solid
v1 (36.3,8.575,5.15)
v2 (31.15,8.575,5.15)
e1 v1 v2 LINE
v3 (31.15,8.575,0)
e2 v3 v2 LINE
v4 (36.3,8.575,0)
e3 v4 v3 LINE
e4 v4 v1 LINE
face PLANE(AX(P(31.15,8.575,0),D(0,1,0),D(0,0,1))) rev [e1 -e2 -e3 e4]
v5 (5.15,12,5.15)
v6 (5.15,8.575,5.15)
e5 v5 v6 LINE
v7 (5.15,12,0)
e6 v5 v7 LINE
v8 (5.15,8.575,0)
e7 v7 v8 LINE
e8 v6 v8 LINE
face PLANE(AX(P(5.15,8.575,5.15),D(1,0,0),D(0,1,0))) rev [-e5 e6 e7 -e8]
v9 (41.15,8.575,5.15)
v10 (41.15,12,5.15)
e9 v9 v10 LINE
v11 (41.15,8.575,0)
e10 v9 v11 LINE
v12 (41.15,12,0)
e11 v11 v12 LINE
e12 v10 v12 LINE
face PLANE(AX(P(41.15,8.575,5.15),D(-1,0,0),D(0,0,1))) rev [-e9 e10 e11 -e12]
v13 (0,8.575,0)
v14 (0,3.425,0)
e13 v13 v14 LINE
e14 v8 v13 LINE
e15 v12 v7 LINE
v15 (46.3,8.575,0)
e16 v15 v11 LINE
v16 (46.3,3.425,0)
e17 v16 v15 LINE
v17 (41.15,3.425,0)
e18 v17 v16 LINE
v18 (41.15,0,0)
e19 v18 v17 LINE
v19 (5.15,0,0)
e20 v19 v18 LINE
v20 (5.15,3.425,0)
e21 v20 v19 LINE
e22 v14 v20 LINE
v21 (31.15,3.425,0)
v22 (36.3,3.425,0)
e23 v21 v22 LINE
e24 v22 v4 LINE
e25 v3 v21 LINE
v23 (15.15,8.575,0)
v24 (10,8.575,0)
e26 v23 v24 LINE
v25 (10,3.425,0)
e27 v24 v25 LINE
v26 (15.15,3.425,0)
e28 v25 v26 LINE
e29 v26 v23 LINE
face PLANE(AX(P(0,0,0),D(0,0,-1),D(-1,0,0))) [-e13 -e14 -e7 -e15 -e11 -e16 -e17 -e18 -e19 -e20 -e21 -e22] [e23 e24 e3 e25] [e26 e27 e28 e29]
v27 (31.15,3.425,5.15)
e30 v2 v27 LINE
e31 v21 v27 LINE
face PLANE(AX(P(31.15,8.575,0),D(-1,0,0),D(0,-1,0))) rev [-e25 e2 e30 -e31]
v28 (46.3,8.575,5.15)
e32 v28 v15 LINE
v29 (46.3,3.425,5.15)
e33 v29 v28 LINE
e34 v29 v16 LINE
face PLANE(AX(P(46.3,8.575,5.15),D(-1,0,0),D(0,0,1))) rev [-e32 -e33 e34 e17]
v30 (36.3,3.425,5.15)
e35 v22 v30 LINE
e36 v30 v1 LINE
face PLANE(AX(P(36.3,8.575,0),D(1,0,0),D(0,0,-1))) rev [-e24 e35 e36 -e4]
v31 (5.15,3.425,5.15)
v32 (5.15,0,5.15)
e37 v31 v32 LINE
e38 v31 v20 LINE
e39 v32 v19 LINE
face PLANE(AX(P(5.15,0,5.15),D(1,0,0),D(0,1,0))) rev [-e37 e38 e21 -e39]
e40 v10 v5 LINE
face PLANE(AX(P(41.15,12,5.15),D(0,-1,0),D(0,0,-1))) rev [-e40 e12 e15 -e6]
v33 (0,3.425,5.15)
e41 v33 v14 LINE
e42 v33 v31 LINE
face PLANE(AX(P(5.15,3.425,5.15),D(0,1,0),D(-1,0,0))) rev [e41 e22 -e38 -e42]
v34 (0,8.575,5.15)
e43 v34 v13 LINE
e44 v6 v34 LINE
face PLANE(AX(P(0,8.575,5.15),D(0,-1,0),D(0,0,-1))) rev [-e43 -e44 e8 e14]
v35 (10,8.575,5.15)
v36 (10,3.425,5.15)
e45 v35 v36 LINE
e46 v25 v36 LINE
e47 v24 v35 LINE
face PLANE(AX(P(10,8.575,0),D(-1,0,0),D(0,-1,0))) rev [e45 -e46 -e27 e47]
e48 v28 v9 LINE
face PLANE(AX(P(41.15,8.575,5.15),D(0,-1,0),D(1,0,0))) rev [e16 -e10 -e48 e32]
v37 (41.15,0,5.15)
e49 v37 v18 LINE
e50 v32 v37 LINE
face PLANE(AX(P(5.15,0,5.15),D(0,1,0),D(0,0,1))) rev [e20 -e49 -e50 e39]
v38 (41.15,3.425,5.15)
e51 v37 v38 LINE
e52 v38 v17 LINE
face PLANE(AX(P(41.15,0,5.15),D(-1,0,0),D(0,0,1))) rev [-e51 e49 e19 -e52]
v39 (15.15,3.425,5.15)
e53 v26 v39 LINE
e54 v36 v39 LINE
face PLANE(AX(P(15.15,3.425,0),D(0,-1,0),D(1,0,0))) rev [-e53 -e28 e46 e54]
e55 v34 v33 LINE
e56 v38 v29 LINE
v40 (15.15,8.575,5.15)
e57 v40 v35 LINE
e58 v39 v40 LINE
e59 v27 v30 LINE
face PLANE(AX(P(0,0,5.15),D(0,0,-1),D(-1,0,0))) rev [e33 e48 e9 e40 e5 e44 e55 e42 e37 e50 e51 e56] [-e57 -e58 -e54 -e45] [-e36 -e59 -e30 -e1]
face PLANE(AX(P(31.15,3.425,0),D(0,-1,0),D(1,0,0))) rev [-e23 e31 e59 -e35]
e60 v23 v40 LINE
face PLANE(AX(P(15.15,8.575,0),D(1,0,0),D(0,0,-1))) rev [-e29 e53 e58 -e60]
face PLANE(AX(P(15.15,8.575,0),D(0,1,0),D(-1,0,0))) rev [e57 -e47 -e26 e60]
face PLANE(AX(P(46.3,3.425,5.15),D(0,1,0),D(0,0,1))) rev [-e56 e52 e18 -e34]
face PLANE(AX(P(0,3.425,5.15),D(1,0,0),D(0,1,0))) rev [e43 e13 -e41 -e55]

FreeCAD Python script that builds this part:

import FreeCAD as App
import Part
import Sketcher

V = App.Vector
Q = App.Units.Quantity

doc = App.newDocument("Part")
body = doc.addObject("PartDesign::Body", "Body")

# Sketch on XY plane
sketch1 = body.newObject("Sketcher::SketchObject", "Sketch")
sketch1.AttachmentSupport = (doc.getObject("XY_Plane"), [""])
sketch1.MapMode = "FlatFace"
sketch1.addGeometry([
    Part.LineSegment(V(0, 8.6, 0), V(0, 3.4, 0)),  # 0
    Part.LineSegment(V(0, 3.4, 0), V(5.2, 3.4, 0)),  # 1
    Part.LineSegment(V(5.2, 3.4, 0), V(5.2, 0, 0)),  # 2
    Part.LineSegment(V(5.2, 0, 0), V(41.1, 0, 0)),  # 3
    Part.LineSegment(V(41.1, 0, 0), V(41.1, 3.4, 0)),  # 4
    Part.LineSegment(V(41.1, 3.4, 0), V(46.3, 3.4, 0)),  # 5
    Part.LineSegment(V(46.3, 3.4, 0), V(46.3, 8.6, 0)),  # 6
    Part.LineSegment(V(46.3, 8.6, 0), V(41.1, 8.6, 0)),  # 7
    Part.LineSegment(V(41.1, 8.6, 0), V(41.1, 12, 0)),  # 8
    Part.LineSegment(V(41.1, 12, 0), V(5.2, 12, 0)),  # 9
    Part.LineSegment(V(5.2, 12, 0), V(5.2, 8.6, 0)),  # 10
    Part.LineSegment(V(5.2, 8.6, 0), V(0, 8.6, 0)),  # 11
], False)
sketch1.addConstraint([
    Sketcher.Constraint("Coincident", 0, 2, 1, 1),
    Sketcher.Constraint("Coincident", 1, 2, 2, 1),
    Sketcher.Constraint("Coincident", 2, 2, 3, 1),
    Sketcher.Constraint("Coincident", 3, 2, 4, 1),
    Sketcher.Constraint("Coincident", 4, 2, 5, 1),
    Sketcher.Constraint("Coincident", 5, 2, 6, 1),
    Sketcher.Constraint("Coincident", 6, 2, 7, 1),
    Sketcher.Constraint("Coincident", 7, 2, 8, 1),
    Sketcher.Constraint("Coincident", 8, 2, 9, 1),
    Sketcher.Constraint("Coincident", 9, 2, 10, 1),
    Sketcher.Constraint("Coincident", 10, 2, 11, 1),
    Sketcher.Constraint("Coincident", 11, 2, 0, 1),
    Sketcher.Constraint("Vertical", 0),
    Sketcher.Constraint("Horizontal", 1),
    Sketcher.Constraint("Vertical", 2),
    Sketcher.Constraint("Horizontal", 3),
    Sketcher.Constraint("Vertical", 4),
    Sketcher.Constraint("Horizontal", 5),
    Sketcher.Constraint("Vertical", 6),
    Sketcher.Constraint("Horizontal", 7),
    Sketcher.Constraint("Vertical", 8),
    Sketcher.Constraint("Horizontal", 9),
    Sketcher.Constraint("Vertical", 10),
    Sketcher.Constraint("Horizontal", 11),
    Sketcher.Constraint("PointOnObject", 0, 2, -2),
    Sketcher.Constraint("PointOnObject", 2, 2, -1),
    Sketcher.Constraint("Horizontal", 1, 2, 4, 2),
    Sketcher.Constraint("Horizontal", 7, 2, 10, 2),
    Sketcher.Constraint("Vertical", 4, 2, 7, 2),
    Sketcher.Constraint("Vertical", 2, 2, 9, 2),
    Sketcher.Constraint("Equal", 1, 5),
    Sketcher.Constraint("Equal", 11, 0),
    Sketcher.Constraint("Equal", 4, 8),
    Sketcher.Constraint("DistanceX", 3, 1, 3, 2, Q("36 mm")),
    Sketcher.Constraint("DistanceY", -1, 1, 8, 2, Q("12 mm")),
    Sketcher.Constraint("DistanceX", 1, 1, 1, 2, Q("5.15 mm")),
])
pad1 = body.newObject("PartDesign::Pad", "Pad")
pad1.Profile = sketch1
pad1.Length = 5.15

# Sketch on XY plane
sketch2 = body.newObject("Sketcher::SketchObject", "Sketch001")
sketch2.AttachmentSupport = (doc.getObject("XY_Plane"), [""])
sketch2.MapMode = "FlatFace"
sketch2.AttachmentOffset = App.Placement(V(0, 0, 5.15), App.Rotation())
sketch2.addGeometry([
    Part.LineSegment(V(10, 9, 0), V(10, 3, 0)),  # 0
    Part.LineSegment(V(10, 3, 0), V(15, 3, 0)),  # 1
    Part.LineSegment(V(15, 3, 0), V(15, 9, 0)),  # 2
    Part.LineSegment(V(15, 9, 0), V(10, 9, 0)),  # 3
    Part.LineSegment(V(31, 9, 0), V(31, 3, 0)),  # 4
    Part.LineSegment(V(31, 3, 0), V(36, 3, 0)),  # 5
    Part.LineSegment(V(36, 3, 0), V(36, 9, 0)),  # 6
    Part.LineSegment(V(36, 9, 0), V(31, 9, 0)),  # 7
], False)
sketch2.addConstraint([
    Sketcher.Constraint("Coincident", 0, 2, 1, 1),
    Sketcher.Constraint("Coincident", 1, 2, 2, 1),
    Sketcher.Constraint("Coincident", 2, 2, 3, 1),
    Sketcher.Constraint("Coincident", 3, 2, 0, 1),
    Sketcher.Constraint("Coincident", 4, 2, 5, 1),
    Sketcher.Constraint("Coincident", 5, 2, 6, 1),
    Sketcher.Constraint("Coincident", 6, 2, 7, 1),
    Sketcher.Constraint("Coincident", 7, 2, 4, 1),
    Sketcher.Constraint("Vertical", 0),
    Sketcher.Constraint("Horizontal", 1),
    Sketcher.Constraint("Vertical", 2),
    Sketcher.Constraint("Horizontal", 3),
    Sketcher.Constraint("Vertical", 4),
    Sketcher.Constraint("Horizontal", 5),
    Sketcher.Constraint("Vertical", 6),
    Sketcher.Constraint("Horizontal", 7),
    Sketcher.Constraint("Horizontal", 1, 2, 4, 2),
    Sketcher.Constraint("Horizontal", 3, 2, 6, 2),
    Sketcher.Constraint("Equal", 3, 5),
    Sketcher.Constraint("Equal", 7, 0),
    Sketcher.Constraint("DistanceX", -1, 1, 0, 2, Q("10 mm")),
    Sketcher.Constraint("DistanceX", 1, 2, 4, 2, Q("16 mm")),
    Sketcher.Constraint("DistanceX", 1, 1, 1, 2, Q("5.15 mm")),
    Sketcher.Constraint("DistanceY", -1, 1, 0, 2, Q("3.425 mm")),
])
pocket1 = body.newObject("PartDesign::Pocket", "Pocket")
pocket1.Profile = sketch2
pocket1.Type = "ThroughAll"

doc.recompute()
